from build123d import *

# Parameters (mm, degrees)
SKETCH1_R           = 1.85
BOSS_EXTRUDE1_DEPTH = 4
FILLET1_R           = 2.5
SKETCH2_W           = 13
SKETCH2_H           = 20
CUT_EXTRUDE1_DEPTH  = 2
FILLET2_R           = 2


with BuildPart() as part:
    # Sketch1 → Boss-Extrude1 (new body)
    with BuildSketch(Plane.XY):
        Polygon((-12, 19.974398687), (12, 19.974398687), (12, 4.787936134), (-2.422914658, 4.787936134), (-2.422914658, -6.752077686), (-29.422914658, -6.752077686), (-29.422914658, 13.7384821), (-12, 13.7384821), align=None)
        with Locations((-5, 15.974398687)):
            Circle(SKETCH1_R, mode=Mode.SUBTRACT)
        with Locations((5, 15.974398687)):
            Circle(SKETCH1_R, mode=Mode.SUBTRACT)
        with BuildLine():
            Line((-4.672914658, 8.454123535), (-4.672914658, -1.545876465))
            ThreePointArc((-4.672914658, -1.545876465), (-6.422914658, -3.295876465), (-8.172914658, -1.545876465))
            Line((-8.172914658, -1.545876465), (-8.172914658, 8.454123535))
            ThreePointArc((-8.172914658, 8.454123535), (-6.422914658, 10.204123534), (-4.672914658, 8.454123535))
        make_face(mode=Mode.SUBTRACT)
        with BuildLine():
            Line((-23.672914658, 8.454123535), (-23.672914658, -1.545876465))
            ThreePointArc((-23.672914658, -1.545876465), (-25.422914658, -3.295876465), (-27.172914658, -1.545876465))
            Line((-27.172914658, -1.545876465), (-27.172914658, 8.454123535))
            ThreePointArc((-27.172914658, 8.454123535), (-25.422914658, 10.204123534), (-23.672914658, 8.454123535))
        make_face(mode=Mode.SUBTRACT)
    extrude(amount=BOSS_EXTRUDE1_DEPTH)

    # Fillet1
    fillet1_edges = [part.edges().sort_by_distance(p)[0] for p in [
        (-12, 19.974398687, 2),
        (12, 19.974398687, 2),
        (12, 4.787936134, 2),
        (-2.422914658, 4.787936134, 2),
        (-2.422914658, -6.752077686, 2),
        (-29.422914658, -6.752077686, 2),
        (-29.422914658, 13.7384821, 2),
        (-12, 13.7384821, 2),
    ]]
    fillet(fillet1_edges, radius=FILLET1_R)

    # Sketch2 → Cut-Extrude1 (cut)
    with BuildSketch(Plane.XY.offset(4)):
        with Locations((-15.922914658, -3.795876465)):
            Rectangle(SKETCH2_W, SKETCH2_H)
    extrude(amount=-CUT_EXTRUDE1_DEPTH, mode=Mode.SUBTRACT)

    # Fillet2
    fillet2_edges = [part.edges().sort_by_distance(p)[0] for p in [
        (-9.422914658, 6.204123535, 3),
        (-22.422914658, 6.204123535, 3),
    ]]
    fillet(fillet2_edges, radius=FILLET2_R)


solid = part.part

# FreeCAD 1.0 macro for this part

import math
import FreeCAD as App
import Part
import Sketcher
from FreeCAD import Vector
Q = App.Units.Quantity


def edges_at(feature, points):
    """Names of the edges that pass closest to the given points."""
    edges = feature.Shape.Edges
    near = lambda p: min(range(len(edges)), key=lambda i: edges[i].distToShape(Part.Vertex(*p))[0])
    return sorted({f"Edge{near(p) + 1}" for p in points})


def add_polygon(sketch, points):
    """Adds a closed chain of lines whose ends are joined by coincident constraints."""
    first, n = sketch.GeometryCount, len(points)
    for a, b in zip(points, points[1:] + points[:1]):
        sketch.addGeometry(Part.LineSegment(App.Vector(*a, 0), App.Vector(*b, 0)), False)
    for i in range(n):
        sketch.addConstraint(Sketcher.Constraint("Coincident", first + i, 2, first + (i + 1) % n, 1))

doc = App.newDocument("Part")
body = doc.addObject("PartDesign::Body", "Body")

# Sketch on XY plane
sketch1 = body.newObject("Sketcher::SketchObject", "Sketch")
sketch1.AttachmentSupport = (doc.getObject("XY_Plane"), [""])
sketch1.MapMode = "FlatFace"
add_polygon(sketch1, [(12, 19.974399), (-12, 19.974399), (-12, 13.738482), (-29.422915, 13.738482), (-29.422915, -6.752078), (-2.422915, -6.752078), (-2.422915, 4.787936), (12, 4.787936)])  # lines 0-7
sketch1.addGeometry(Part.LineSegment(Vector(-4.672915, 8.454124, 0), Vector(-4.672915, -1.545876, 0)), False)  # 8
sketch1.addGeometry(Part.ArcOfCircle(Part.Circle(Vector(-6.422915, -1.545876, 0), Vector(0, 0, 1), 1.75), math.radians(180), math.radians(360)), False)  # 9
sketch1.addGeometry(Part.LineSegment(Vector(-8.172915, -1.545876, 0), Vector(-8.172915, 8.454124, 0)), False)  # 10
sketch1.addGeometry(Part.ArcOfCircle(Part.Circle(Vector(-6.422915, 8.454124, 0), Vector(0, 0, 1), 1.75), math.radians(0), math.radians(180)), False)  # 11
sketch1.addGeometry(Part.LineSegment(Vector(-23.672915, 8.454124, 0), Vector(-23.672915, -1.545876, 0)), False)  # 12
sketch1.addGeometry(Part.ArcOfCircle(Part.Circle(Vector(-25.422915, -1.545876, 0), Vector(0, 0, 1), 1.75), math.radians(180), math.radians(360)), False)  # 13
sketch1.addGeometry(Part.LineSegment(Vector(-27.172915, -1.545876, 0), Vector(-27.172915, 8.454124, 0)), False)  # 14
sketch1.addGeometry(Part.ArcOfCircle(Part.Circle(Vector(-25.422915, 8.454124, 0), Vector(0, 0, 1), 1.75), math.radians(0), math.radians(180)), False)  # 15
sketch1.addGeometry(Part.Circle(Vector(5, 15.974399, 0), Vector(0, 0, 1), 1.85), False)  # 16
sketch1.addGeometry(Part.Circle(Vector(-5, 15.974399, 0), Vector(0, 0, 1), 1.85), False)  # 17
sketch1.addConstraint(Sketcher.Constraint("Tangent", 8, 2, 9, 2))
sketch1.addConstraint(Sketcher.Constraint("Tangent", 9, 1, 10, 1))
sketch1.addConstraint(Sketcher.Constraint("Tangent", 10, 2, 11, 2))
sketch1.addConstraint(Sketcher.Constraint("Tangent", 11, 1, 8, 1))
sketch1.addConstraint(Sketcher.Constraint("Tangent", 12, 2, 13, 2))
sketch1.addConstraint(Sketcher.Constraint("Tangent", 13, 1, 14, 1))
sketch1.addConstraint(Sketcher.Constraint("Tangent", 14, 2, 15, 2))
sketch1.addConstraint(Sketcher.Constraint("Tangent", 15, 1, 12, 1))
sketch1.addConstraint(Sketcher.Constraint("Horizontal", 0))
sketch1.addConstraint(Sketcher.Constraint("Vertical", 1))
sketch1.addConstraint(Sketcher.Constraint("Horizontal", 2))
sketch1.addConstraint(Sketcher.Constraint("Vertical", 3))
sketch1.addConstraint(Sketcher.Constraint("Horizontal", 4))
sketch1.addConstraint(Sketcher.Constraint("Vertical", 5))
sketch1.addConstraint(Sketcher.Constraint("Horizontal", 6))
sketch1.addConstraint(Sketcher.Constraint("Vertical", 7))
sketch1.addConstraint(Sketcher.Constraint("Vertical", 8))
sketch1.addConstraint(Sketcher.Constraint("Vertical", 10))
sketch1.addConstraint(Sketcher.Constraint("Vertical", 12))
sketch1.addConstraint(Sketcher.Constraint("Vertical", 14))
sketch1.addConstraint(Sketcher.Constraint("Equal", 11, 13))
sketch1.addConstraint(Sketcher.Constraint("Equal", 16, 17))
sketch1.addConstraint(Sketcher.Constraint("Symmetric", 16, 3, 17, 3, -2))
sketch1.addConstraint(Sketcher.Constraint("Horizontal", 9, 3, 13, 3))
sketch1.addConstraint(Sketcher.Constraint("Horizontal", 11, 3, 15, 3))
sketch1.addConstraint(Sketcher.Constraint("Diameter", 16, Q("3.7 mm")))
sketch1.addConstraint(Sketcher.Constraint("DistanceX", 0, 2, 0, 1, Q("24 mm")))
sketch1.addConstraint(Sketcher.Constraint("DistanceX", 4, 1, 4, 2, Q("27 mm")))
sketch1.addConstraint(Sketcher.Constraint("DistanceY", 8, 2, 8, 1, Q("10 mm")))
sketch1.addConstraint(Sketcher.Constraint("Radius", 9, Q("1.75 mm")))
sketch1.addConstraint(Sketcher.Constraint("DistanceX", -1, 1, 16, 3, Q("5 mm")))
sketch1.addConstraint(Sketcher.Constraint("DistanceX", 0, 2, -1, 1, Q("12 mm")))
sketch1.addConstraint(Sketcher.Constraint("DistanceX", 13, 3, 9, 3, Q("19 mm")))
sketch1.addConstraint(Sketcher.Constraint("DistanceY", 17, 3, 0, 2, Q("4 mm")))
sketch1.addConstraint(Sketcher.Constraint("DistanceX", 2, 2, 15, 3, Q("4 mm")))
sketch1.addConstraint(Sketcher.Constraint("DistanceY", 3, 2, 3, 1, Q("20.49056 mm")))
sketch1.addConstraint(Sketcher.Constraint("DistanceY", -1, 1, 16, 3, Q("15.974399 mm")))
sketch1.addConstraint(Sketcher.Constraint("DistanceY", 3, 2, 13, 3, Q("5.206201 mm")))
sketch1.addConstraint(Sketcher.Constraint("DistanceX", 2, 2, 2, 1, Q("17.422915 mm")))
sketch1.addConstraint(Sketcher.Constraint("DistanceY", 1, 2, 1, 1, Q("6.235917 mm")))
sketch1.addConstraint(Sketcher.Constraint("DistanceY", 5, 1, 5, 2, Q("11.540014 mm")))
pad1 = body.newObject("PartDesign::Pad", "Pad")
pad1.Profile = sketch1
pad1.Length = 4
doc.recompute()

fillet = body.newObject("PartDesign::Fillet", "Fillet")
fillet.Base = (pad1, edges_at(pad1, [
    (-12, 19.974, 2),
    (12, 19.974, 2),
    (12, 4.788, 2),
    (-2.423, 4.788, 2),
    (-2.423, -6.752, 2),
    (-29.423, -6.752, 2),
    (-29.423, 13.738, 2),
    (-12, 13.738, 2),
]))
fillet.Radius = 2.5

# Sketch on XY plane
sketch2 = body.newObject("Sketcher::SketchObject", "Sketch001")
sketch2.AttachmentSupport = (doc.getObject("XY_Plane"), [""])
sketch2.MapMode = "FlatFace"
sketch2.AttachmentOffset = App.Placement(Vector(0, 0, 4), App.Rotation())
add_polygon(sketch2, [(-22.422915, 6.204124), (-22.422915, -13.795876), (-9.422915, -13.795876), (-9.422915, 6.204124)])  # lines 0-3
sketch2.addConstraint(Sketcher.Constraint("Vertical", 0))
sketch2.addConstraint(Sketcher.Constraint("Horizontal", 1))
sketch2.addConstraint(Sketcher.Constraint("Vertical", 2))
sketch2.addConstraint(Sketcher.Constraint("Horizontal", 3))
sketch2.addConstraint(Sketcher.Constraint("DistanceX", 1, 1, 1, 2, Q("13 mm")))
sketch2.addConstraint(Sketcher.Constraint("DistanceY", 0, 2, 0, 1, Q("20 mm")))
sketch2.addConstraint(Sketcher.Constraint("DistanceX", 0, 2, -1, 1, Q("22.422915 mm")))
sketch2.addConstraint(Sketcher.Constraint("DistanceY", 0, 2, -1, 1, Q("13.795876 mm")))
pocket1 = body.newObject("PartDesign::Pocket", "Pocket")
pocket1.Profile = sketch2
pocket1.Length = 2
doc.recompute()

fillet2 = body.newObject("PartDesign::Fillet", "Fillet001")
fillet2.Base = (pocket1, edges_at(pocket1, [(-9.423, 6.204, 3), (-22.423, 6.204, 3)]))
fillet2.Radius = 2

doc.recompute()
